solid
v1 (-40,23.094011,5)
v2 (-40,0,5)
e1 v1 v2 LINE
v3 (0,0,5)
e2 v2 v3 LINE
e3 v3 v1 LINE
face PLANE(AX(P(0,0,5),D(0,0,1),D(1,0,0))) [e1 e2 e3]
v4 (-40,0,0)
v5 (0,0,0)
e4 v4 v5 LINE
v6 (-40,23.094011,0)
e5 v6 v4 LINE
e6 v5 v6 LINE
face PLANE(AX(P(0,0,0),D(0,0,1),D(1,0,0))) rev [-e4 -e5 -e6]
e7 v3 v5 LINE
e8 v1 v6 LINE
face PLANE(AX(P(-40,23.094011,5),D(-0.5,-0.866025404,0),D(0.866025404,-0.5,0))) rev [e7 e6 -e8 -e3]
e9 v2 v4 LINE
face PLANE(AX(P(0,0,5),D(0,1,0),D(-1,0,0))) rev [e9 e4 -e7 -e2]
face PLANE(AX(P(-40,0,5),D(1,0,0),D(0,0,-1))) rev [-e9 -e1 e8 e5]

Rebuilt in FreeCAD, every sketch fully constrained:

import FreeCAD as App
import Part
import Sketcher

V = App.Vector
Q = App.Units.Quantity

doc = App.newDocument("Part")
body = doc.addObject("PartDesign::Body", "Body")

# Sketch on XY plane
sketch1 = doc.addObject("Sketcher::SketchObject", "Sketch")
body.addObject(sketch1)
sketch1.AttachmentSupport = (doc.XY_Plane, [""])
sketch1.MapMode = "FlatFace"
sketch1.addGeometry([
    Part.LineSegment(V(-40, 0, 0), V(0, 0, 0)),
    Part.LineSegment(V(0, 0, 0), V(-40, 23.094011, 0)),
    Part.LineSegment(V(-40, 23.094011, 0), V(-40, 0, 0)),
], False)
sketch1.addConstraint([
    Sketcher.Constraint("Coincident", 0, 2, 1, 1),
    Sketcher.Constraint("Coincident", 1, 2, 2, 1),
    Sketcher.Constraint("Coincident", 2, 2, 0, 1),
    Sketcher.Constraint("Horizontal", 0),
    Sketcher.Constraint("Vertical", 2),
    Sketcher.Constraint("Coincident", 0, 2, -1, 1),
    Sketcher.Constraint("DistanceX", 0, 1, 0, 2, 40.0),
    Sketcher.Constraint("Angle", 1, Q("150 deg")),
])
pad1 = doc.addObject("PartDesign::Pad", "Pad")
body.addObject(pad1)
pad1.Profile = sketch1
pad1.Length = 5

doc.recompute()
